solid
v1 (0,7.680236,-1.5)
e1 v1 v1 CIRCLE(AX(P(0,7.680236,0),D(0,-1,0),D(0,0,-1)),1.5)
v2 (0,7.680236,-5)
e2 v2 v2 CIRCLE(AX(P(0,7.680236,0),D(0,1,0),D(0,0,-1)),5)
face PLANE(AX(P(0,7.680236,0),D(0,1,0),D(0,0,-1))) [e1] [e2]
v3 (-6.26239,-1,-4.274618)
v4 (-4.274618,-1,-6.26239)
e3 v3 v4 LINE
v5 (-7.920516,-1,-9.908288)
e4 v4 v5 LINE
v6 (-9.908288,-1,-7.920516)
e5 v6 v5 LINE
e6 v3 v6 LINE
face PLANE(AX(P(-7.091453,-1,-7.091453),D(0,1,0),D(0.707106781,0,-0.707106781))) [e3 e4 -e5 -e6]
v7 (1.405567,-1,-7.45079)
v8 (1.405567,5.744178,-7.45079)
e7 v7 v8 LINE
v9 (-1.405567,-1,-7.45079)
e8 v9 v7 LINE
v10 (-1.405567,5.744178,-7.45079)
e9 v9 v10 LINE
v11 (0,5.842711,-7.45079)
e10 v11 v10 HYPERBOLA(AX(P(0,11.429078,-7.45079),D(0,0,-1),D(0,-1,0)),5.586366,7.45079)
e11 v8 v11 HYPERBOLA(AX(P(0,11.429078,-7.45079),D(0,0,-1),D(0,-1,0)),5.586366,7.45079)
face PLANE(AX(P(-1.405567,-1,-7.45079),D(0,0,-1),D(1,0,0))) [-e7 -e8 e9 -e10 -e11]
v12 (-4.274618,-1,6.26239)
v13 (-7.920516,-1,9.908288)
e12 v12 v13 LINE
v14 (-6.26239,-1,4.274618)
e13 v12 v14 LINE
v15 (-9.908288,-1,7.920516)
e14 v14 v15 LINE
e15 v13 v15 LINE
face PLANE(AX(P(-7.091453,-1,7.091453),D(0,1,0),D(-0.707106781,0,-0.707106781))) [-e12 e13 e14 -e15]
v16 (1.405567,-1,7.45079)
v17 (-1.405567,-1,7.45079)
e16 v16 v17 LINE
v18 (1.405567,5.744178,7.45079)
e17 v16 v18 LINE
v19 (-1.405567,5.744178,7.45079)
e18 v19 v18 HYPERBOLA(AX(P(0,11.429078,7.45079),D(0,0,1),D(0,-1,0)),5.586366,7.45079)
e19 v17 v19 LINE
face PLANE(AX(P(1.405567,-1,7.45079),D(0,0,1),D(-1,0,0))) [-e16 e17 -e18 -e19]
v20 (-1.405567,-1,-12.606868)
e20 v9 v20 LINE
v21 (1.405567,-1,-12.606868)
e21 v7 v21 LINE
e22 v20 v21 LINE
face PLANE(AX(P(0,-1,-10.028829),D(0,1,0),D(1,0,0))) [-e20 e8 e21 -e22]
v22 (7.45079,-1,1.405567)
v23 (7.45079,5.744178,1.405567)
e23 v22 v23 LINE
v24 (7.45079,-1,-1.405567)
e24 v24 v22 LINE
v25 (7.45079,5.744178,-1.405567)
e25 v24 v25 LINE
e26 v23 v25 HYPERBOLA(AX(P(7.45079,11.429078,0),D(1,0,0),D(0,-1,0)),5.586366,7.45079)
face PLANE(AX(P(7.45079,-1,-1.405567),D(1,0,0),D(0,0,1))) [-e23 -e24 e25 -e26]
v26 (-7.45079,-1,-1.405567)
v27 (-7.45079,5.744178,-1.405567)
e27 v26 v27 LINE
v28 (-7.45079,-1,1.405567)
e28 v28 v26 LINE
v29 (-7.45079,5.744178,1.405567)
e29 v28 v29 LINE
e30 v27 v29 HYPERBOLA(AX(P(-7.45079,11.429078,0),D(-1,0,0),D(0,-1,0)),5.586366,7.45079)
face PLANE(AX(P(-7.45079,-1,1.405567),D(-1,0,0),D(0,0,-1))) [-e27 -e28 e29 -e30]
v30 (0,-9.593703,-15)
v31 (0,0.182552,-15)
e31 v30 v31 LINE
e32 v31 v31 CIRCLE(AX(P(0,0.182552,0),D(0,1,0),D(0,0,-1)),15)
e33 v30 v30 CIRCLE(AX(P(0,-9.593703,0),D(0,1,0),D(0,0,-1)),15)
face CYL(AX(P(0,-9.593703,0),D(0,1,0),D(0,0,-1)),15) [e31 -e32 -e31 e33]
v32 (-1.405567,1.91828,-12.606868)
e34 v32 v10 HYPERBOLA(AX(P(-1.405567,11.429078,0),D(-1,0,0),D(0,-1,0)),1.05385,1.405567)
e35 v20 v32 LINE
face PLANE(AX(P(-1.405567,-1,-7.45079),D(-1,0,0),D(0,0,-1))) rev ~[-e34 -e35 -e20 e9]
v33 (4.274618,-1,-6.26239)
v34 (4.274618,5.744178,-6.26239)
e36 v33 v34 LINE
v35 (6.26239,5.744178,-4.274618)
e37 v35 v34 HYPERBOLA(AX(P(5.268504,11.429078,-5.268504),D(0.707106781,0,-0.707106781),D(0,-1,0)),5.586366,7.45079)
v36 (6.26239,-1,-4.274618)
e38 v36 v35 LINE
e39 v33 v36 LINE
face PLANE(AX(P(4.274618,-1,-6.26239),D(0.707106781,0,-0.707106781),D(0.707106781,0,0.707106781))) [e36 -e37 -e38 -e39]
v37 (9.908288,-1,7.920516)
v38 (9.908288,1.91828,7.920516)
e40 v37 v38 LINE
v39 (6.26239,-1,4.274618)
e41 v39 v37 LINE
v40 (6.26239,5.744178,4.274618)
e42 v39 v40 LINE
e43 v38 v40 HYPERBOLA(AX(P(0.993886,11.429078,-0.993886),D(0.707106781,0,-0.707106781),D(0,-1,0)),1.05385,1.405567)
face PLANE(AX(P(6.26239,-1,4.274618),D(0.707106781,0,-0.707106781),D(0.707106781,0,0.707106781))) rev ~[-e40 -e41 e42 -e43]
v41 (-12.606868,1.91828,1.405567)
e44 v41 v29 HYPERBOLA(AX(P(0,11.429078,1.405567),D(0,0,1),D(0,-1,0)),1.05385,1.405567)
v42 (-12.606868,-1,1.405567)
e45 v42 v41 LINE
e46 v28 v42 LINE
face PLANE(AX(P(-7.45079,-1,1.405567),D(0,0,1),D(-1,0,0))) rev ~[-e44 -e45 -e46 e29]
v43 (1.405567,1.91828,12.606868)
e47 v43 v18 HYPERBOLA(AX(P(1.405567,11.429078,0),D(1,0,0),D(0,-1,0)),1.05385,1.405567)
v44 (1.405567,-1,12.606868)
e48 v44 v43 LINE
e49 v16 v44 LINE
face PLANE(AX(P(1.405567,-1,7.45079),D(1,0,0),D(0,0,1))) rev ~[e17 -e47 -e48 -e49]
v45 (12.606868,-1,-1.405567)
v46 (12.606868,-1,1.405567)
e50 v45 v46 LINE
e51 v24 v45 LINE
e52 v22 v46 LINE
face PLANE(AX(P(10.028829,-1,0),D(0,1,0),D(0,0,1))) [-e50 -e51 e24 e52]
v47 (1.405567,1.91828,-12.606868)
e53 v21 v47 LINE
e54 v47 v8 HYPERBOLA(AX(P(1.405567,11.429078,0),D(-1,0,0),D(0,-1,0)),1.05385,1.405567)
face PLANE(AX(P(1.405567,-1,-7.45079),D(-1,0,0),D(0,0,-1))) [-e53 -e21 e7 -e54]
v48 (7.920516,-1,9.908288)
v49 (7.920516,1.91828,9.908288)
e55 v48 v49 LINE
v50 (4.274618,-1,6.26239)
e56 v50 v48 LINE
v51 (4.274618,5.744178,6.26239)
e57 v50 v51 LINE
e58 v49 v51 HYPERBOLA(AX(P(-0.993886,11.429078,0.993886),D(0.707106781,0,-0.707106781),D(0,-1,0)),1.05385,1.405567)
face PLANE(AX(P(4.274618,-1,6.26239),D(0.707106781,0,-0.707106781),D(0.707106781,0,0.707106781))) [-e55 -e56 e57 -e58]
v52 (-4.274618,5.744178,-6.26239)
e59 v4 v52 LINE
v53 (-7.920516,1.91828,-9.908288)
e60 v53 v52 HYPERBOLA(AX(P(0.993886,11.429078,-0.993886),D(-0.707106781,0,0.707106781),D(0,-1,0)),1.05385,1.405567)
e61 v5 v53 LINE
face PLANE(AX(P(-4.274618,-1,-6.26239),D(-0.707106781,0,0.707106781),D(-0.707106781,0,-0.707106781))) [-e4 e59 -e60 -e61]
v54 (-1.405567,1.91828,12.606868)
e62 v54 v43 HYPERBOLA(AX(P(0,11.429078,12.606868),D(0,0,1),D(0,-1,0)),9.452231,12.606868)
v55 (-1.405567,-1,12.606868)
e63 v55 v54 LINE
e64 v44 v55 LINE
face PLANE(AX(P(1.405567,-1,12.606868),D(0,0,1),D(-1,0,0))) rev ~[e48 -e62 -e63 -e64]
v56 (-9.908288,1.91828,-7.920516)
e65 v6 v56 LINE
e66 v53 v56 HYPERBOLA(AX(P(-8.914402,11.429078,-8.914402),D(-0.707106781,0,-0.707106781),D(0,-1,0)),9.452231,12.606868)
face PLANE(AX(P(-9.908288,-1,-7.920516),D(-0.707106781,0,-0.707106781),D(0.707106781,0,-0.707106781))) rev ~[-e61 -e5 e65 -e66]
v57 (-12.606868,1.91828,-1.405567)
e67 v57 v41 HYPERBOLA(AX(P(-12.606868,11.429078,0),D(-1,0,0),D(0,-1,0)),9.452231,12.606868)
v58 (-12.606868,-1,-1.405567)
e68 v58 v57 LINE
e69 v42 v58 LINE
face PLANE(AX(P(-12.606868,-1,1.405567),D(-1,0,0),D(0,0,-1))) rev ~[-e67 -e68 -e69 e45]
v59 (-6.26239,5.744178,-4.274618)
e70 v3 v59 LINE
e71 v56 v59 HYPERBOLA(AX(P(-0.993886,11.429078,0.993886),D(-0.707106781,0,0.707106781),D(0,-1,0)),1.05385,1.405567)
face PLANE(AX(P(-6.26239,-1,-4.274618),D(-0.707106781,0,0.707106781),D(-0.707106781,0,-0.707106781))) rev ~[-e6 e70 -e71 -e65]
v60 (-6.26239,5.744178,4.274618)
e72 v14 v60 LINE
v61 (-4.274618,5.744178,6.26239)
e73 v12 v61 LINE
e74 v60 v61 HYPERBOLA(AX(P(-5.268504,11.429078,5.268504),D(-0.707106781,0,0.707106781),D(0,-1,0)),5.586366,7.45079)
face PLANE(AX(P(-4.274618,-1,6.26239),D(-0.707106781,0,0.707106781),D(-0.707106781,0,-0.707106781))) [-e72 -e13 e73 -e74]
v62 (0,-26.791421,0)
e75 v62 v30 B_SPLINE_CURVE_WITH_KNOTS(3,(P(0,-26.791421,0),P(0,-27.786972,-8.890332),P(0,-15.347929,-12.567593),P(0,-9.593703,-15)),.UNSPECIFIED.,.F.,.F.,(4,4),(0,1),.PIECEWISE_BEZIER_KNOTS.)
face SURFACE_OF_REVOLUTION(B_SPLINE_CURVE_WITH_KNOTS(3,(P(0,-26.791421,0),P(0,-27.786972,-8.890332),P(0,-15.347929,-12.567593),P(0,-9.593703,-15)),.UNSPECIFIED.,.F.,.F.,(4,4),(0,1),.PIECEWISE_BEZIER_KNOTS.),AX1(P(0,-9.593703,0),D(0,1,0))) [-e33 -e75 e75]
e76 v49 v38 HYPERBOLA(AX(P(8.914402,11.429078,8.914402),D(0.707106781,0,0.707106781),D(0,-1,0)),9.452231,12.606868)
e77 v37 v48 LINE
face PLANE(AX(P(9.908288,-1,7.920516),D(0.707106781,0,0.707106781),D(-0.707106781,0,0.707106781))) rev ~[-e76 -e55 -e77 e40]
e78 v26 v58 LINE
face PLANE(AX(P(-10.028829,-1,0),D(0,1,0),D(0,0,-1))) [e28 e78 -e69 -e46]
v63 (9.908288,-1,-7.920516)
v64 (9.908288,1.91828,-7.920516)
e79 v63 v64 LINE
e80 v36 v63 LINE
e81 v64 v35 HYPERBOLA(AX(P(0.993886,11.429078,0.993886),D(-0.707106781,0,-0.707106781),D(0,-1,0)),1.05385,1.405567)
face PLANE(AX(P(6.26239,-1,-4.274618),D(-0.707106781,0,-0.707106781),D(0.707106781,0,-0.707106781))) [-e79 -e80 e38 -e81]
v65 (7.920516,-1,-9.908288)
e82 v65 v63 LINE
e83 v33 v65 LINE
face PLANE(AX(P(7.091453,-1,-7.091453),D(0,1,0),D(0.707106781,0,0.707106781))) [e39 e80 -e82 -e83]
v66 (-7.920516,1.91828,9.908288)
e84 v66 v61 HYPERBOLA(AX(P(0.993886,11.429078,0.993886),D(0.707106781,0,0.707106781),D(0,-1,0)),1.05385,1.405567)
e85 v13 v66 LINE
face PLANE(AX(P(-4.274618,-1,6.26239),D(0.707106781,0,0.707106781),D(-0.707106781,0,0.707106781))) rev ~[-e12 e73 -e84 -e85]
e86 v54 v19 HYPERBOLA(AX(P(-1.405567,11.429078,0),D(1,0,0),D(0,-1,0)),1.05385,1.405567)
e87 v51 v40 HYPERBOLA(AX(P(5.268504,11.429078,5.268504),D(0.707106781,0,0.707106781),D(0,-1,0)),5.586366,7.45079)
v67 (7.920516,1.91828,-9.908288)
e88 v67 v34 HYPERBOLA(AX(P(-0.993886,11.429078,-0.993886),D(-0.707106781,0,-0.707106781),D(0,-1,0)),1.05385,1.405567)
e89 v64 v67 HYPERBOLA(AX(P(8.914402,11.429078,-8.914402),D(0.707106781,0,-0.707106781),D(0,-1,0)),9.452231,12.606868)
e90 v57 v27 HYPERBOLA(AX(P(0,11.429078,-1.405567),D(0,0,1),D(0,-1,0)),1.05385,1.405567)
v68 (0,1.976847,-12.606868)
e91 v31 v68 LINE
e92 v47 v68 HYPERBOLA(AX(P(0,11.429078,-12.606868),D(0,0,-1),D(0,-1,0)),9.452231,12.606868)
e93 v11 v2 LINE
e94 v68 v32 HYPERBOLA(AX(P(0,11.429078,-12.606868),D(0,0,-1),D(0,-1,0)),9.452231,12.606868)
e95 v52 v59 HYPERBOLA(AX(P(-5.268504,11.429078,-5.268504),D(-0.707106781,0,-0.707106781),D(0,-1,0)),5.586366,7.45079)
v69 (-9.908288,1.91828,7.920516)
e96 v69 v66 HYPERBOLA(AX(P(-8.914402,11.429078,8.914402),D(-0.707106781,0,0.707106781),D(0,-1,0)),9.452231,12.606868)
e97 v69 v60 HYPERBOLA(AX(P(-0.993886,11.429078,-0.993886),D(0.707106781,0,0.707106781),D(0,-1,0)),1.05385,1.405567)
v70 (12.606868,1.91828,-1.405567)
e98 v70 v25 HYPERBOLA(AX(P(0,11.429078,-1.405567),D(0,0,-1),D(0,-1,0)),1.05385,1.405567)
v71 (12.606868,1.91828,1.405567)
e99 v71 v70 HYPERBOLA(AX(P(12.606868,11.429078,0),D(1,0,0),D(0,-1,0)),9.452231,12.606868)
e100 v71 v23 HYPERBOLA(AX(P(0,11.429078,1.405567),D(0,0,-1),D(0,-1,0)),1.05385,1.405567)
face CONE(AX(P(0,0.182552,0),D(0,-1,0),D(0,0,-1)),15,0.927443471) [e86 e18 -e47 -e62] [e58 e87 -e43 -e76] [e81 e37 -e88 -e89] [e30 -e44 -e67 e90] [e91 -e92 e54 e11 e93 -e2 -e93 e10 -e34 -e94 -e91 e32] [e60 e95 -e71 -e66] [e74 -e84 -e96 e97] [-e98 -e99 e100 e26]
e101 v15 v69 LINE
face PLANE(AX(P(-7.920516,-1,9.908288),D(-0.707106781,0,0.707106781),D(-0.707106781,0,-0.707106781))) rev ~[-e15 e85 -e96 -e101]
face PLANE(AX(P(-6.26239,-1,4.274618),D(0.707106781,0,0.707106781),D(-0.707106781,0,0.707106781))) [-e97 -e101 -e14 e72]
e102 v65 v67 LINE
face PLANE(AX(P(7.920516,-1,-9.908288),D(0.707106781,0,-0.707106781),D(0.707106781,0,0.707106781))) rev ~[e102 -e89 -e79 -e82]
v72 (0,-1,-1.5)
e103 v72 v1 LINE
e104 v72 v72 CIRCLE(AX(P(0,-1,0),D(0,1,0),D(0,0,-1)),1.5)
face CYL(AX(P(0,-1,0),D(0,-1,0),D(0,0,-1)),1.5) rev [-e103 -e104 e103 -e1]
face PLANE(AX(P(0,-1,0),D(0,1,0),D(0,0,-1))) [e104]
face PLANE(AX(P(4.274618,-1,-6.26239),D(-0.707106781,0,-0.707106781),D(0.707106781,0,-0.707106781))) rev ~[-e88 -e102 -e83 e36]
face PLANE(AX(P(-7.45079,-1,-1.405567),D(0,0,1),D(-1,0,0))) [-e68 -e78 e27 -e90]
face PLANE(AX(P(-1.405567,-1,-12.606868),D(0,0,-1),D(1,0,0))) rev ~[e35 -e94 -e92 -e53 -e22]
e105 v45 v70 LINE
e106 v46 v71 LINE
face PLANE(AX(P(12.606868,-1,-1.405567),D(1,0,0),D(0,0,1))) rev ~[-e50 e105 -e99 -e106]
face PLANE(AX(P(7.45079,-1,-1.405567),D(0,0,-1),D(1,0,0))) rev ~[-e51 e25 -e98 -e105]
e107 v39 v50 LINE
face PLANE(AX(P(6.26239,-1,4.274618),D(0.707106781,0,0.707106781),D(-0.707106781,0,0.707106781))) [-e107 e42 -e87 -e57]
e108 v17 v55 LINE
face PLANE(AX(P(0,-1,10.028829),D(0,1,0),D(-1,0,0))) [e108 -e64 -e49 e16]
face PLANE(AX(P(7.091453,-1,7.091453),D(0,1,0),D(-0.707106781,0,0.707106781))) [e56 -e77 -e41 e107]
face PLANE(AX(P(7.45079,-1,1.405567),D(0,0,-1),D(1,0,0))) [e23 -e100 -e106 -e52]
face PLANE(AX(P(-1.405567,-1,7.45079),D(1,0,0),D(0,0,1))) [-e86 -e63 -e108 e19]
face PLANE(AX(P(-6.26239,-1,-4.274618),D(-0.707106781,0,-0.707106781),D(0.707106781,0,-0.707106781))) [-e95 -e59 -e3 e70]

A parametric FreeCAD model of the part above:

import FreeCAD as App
import Part
import Sketcher
from FreeCAD import Vector


def add_polygon(sketch, points):
    """Adds a closed chain of lines whose ends are joined by coincident constraints."""
    first, n = sketch.GeometryCount, len(points)
    for a, b in zip(points, points[1:] + points[:1]):
        sketch.addGeometry(Part.LineSegment(App.Vector(*a, 0), App.Vector(*b, 0)), False)
    for i in range(n):
        sketch.addConstraint(Sketcher.Constraint("Coincident", first + i, 2, first + (i + 1) % n, 1))

doc = App.newDocument("Part")
body = doc.addObject("PartDesign::Body", "Body")

sketch1 = body.newObject("Sketcher::SketchObject", "Sketch")
sketch1.AttachmentSupport = (doc.getObject("XY_Plane"), [""])
sketch1.MapMode = "FlatFace"
sketch1.addGeometry(Part.LineSegment(Vector(-5, 7.680236, 0), Vector(-15, 0.182552, 0)), False)
sketch1.addGeometry(Part.LineSegment(Vector(-15, 0.182552, 0), Vector(-15, -9.593703, 0)), False)
sketch1.addGeometry(Part.BSplineCurve([Vector(0, -26.791421, 0), Vector(-8.890332, -27.786972, 0), Vector(-12.567593, -15.347929, 0), Vector(-15, -9.593703, 0)], [4, 4], [0, 1], False, 3, [1, 1, 1, 1], False), False)
sketch1.addGeometry(Part.LineSegment(Vector(0, -26.791421, 0), Vector(0, 7.680236, 0)), False)
sketch1.addGeometry(Part.LineSegment(Vector(0, 7.680236, 0), Vector(-5, 7.680236, 0)), False)
sketch1.addConstraint(Sketcher.Constraint("Block", 2))
sketch1.addConstraint(Sketcher.Constraint("Coincident", 0, 2, 1, 1))
sketch1.addConstraint(Sketcher.Constraint("Coincident", 1, 2, 2, 2))
sketch1.addConstraint(Sketcher.Constraint("Coincident", 2, 1, 3, 1))
sketch1.addConstraint(Sketcher.Constraint("Coincident", 3, 2, 4, 1))
sketch1.addConstraint(Sketcher.Constraint("Coincident", 4, 2, 0, 1))
sketch1.addConstraint(Sketcher.Constraint("Vertical", 1))
sketch1.addConstraint(Sketcher.Constraint("Vertical", 3))
sketch1.addConstraint(Sketcher.Constraint("Horizontal", 4))
sketch1.addConstraint(Sketcher.Constraint("DistanceX", 4, 2, 4, 1, 5.0))
sketch1.addConstraint(Sketcher.Constraint("Distance", 0, 12.49861))
sketch1.addConstraint(Sketcher.Constraint("DistanceY", 1, 2, 1, 1, 9.776255))
revolution = body.newObject("PartDesign::Revolution", "Revolution")
revolution.Profile = sketch1
revolution.ReferenceAxis = (sketch1, ["V_Axis"])
revolution.Angle = 360

sketch2 = body.newObject("Sketcher::SketchObject", "Sketch001")
sketch2.AttachmentSupport = (doc.getObject("XZ_Plane"), [""])
sketch2.MapMode = "FlatFace"
sketch2.addGeometry(Part.Circle(Vector(0, 0, 0), Vector(0, 0, 1), 1.5), False)
sketch2.addConstraint(Sketcher.Constraint("Coincident", 0, 3, -1, 1))
sketch2.addConstraint(Sketcher.Constraint("Diameter", 0, 3.0))
pocket1 = body.newObject("PartDesign::Pocket", "Pocket")
pocket1.Profile = sketch2
pocket1.Type = "TwoLengths"
pocket1.Length = 10
pocket1.Length2 = 1

sketch3 = body.newObject("Sketcher::SketchObject", "Sketch002")
sketch3.AttachmentSupport = (doc.getObject("XZ_Plane"), [""])
sketch3.MapMode = "FlatFace"
sketch3.AttachmentOffset = App.Placement(Vector(0, 0, 1), App.Rotation())
add_polygon(sketch3, [(-1.4, -12.6), (-1.4, -7.5), (1.4, -7.5), (1.4, -12.6)])
sketch3.addConstraint(Sketcher.Constraint("Vertical", 0))
sketch3.addConstraint(Sketcher.Constraint("Horizontal", 1))
sketch3.addConstraint(Sketcher.Constraint("Vertical", 2))
sketch3.addConstraint(Sketcher.Constraint("Horizontal", 3))
sketch3.addConstraint(Sketcher.Constraint("DistanceY", 0, 1, 0, 2, 5.156079))
sketch3.addConstraint(Sketcher.Constraint("DistanceX", 1, 1, 1, 2, 2.811134))
sketch3.addConstraint(Sketcher.Constraint("DistanceY", 0, 2, -1, 1, 7.45079))
sketch3.addConstraint(Sketcher.Constraint("DistanceX", 0, 2, -1, 1, 1.405567))
pocket2 = body.newObject("PartDesign::Pocket", "Pocket001")
pocket2.Profile = sketch3
pocket2.Length = 36.217034
doc.recompute()

polarpattern = body.newObject("PartDesign::PolarPattern", "PolarPattern")
polarpattern.Originals = [pocket2]
polarpattern.Axis = (doc.getObject("Y_Axis"), [""])
polarpattern.Angle = 360
polarpattern.Occurrences = 8
body.Tip = polarpattern

doc.recompute()
